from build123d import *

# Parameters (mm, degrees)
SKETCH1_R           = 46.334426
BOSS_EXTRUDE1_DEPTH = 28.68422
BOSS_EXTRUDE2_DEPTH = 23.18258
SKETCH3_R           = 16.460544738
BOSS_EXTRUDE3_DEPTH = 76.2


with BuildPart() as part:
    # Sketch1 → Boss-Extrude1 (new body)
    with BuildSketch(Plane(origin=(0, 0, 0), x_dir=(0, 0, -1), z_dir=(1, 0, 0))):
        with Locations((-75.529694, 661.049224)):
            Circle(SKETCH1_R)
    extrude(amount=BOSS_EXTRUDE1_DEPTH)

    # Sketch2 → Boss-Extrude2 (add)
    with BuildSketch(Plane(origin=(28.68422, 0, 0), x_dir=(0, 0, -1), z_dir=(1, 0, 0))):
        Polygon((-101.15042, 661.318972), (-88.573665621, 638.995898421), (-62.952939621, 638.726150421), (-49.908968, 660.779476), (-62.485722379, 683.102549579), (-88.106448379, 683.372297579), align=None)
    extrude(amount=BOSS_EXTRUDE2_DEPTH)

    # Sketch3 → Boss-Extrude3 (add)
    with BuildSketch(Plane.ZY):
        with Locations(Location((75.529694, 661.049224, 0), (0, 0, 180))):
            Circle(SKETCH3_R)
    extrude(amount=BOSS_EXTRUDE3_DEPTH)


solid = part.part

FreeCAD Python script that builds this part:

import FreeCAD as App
import Part
import Sketcher
Q = App.Units.Quantity

doc = App.newDocument("Part")
body = doc.addObject("PartDesign::Body", "Body")

sketch1 = body.newObject("Sketcher::SketchObject", "Sketch")
sketch1.AttachmentSupport = (doc.getObject("YZ_Plane"), [""])
sketch1.MapMode = "FlatFace"
sketch1.addGeometry(Part.Circle(App.Vector(661, 76, 0), App.Vector(0, 0, 1), 46), False)
sketch1.addConstraint([
    Sketcher.Constraint("Diameter", 0, Q("92.668852 mm")),
    Sketcher.Constraint("DistanceX", -1, 1, 0, 3, Q("661.049224 mm")),
    Sketcher.Constraint("DistanceY", -1, 1, 0, 3, Q("75.529694 mm")),
])
pad1 = body.newObject("PartDesign::Pad", "Pad")
pad1.Profile = sketch1
pad1.Length = Q("1.1293 in")

sketch2 = body.newObject("Sketcher::SketchObject", "Sketch001")
sketch2.AttachmentSupport = (doc.getObject("YZ_Plane"), [""])
sketch2.MapMode = "FlatFace"
sketch2.AttachmentOffset = App.Placement(App.Vector(0, 0, 1.1293 * 25.4), App.Rotation())
sketch2.addGeometry([
    Part.LineSegment(App.Vector(661, 101, 0), App.Vector(639, 89, 0)),
    Part.LineSegment(App.Vector(639, 89, 0), App.Vector(639, 63, 0)),
    Part.LineSegment(App.Vector(639, 63, 0), App.Vector(661, 50, 0)),
    Part.LineSegment(App.Vector(661, 50, 0), App.Vector(683, 62, 0)),
    Part.LineSegment(App.Vector(683, 62, 0), App.Vector(683, 88, 0)),
    Part.LineSegment(App.Vector(683, 88, 0), App.Vector(661, 101, 0)),
], False)
sketch2.addConstraint([
    Sketcher.Constraint("Coincident", 0, 2, 1, 1),
    Sketcher.Constraint("Coincident", 1, 2, 2, 1),
    Sketcher.Constraint("Coincident", 2, 2, 3, 1),
    Sketcher.Constraint("Coincident", 3, 2, 4, 1),
    Sketcher.Constraint("Coincident", 4, 2, 5, 1),
    Sketcher.Constraint("Coincident", 5, 2, 0, 1),
    Sketcher.Constraint("Parallel", 0, 3),
    Sketcher.Constraint("Parallel", 1, 4),
    Sketcher.Constraint("Parallel", 2, 5),
    Sketcher.Constraint("Equal", 0, 1),
    Sketcher.Constraint("Equal", 1, 2),
    Sketcher.Constraint("Equal", 2, 3),
    Sketcher.Constraint("DistanceY", -1, 1, 5, 2, Q("3.9823 in")),
    Sketcher.Constraint("DistanceX", -1, 1, 0, 2, Q("638.995898 mm")),
    Sketcher.Constraint("DistanceX", 1, 2, 3, 2, Q("44.376399 mm")),
    Sketcher.Constraint("DistanceX", -1, 1, 1, 2, Q("638.72615 mm")),
    Sketcher.Constraint("DistanceY", -1, 1, 1, 2, Q("62.95294 mm")),
    Sketcher.Constraint("DistanceY", -1, 1, 2, 2, Q("49.908968 mm")),
])
pad2 = body.newObject("PartDesign::Pad", "Pad001")
pad2.Profile = sketch2
pad2.Length = Q("0.9127 in")

sketch3 = body.newObject("Sketcher::SketchObject", "Sketch002")
sketch3.AttachmentSupport = (doc.getObject("YZ_Plane"), [""])
sketch3.MapMode = "FlatFace"
sketch3.addGeometry(Part.Circle(App.Vector(661, 76, 0), App.Vector(0, 0, 1), 16), False)
sketch3.addConstraint([
    Sketcher.Constraint("Diameter", 0, Q("32.921089 mm")),
    Sketcher.Constraint("DistanceX", -1, 1, 0, 3, Q("661.049224 mm")),
    Sketcher.Constraint("DistanceY", -1, 1, 0, 3, Q("75.529694 mm")),
])
pad3 = body.newObject("PartDesign::Pad", "Pad002")
pad3.Profile = sketch3
pad3.Length = Q("3 in")
pad3.Reversed = True

doc.recompute()
